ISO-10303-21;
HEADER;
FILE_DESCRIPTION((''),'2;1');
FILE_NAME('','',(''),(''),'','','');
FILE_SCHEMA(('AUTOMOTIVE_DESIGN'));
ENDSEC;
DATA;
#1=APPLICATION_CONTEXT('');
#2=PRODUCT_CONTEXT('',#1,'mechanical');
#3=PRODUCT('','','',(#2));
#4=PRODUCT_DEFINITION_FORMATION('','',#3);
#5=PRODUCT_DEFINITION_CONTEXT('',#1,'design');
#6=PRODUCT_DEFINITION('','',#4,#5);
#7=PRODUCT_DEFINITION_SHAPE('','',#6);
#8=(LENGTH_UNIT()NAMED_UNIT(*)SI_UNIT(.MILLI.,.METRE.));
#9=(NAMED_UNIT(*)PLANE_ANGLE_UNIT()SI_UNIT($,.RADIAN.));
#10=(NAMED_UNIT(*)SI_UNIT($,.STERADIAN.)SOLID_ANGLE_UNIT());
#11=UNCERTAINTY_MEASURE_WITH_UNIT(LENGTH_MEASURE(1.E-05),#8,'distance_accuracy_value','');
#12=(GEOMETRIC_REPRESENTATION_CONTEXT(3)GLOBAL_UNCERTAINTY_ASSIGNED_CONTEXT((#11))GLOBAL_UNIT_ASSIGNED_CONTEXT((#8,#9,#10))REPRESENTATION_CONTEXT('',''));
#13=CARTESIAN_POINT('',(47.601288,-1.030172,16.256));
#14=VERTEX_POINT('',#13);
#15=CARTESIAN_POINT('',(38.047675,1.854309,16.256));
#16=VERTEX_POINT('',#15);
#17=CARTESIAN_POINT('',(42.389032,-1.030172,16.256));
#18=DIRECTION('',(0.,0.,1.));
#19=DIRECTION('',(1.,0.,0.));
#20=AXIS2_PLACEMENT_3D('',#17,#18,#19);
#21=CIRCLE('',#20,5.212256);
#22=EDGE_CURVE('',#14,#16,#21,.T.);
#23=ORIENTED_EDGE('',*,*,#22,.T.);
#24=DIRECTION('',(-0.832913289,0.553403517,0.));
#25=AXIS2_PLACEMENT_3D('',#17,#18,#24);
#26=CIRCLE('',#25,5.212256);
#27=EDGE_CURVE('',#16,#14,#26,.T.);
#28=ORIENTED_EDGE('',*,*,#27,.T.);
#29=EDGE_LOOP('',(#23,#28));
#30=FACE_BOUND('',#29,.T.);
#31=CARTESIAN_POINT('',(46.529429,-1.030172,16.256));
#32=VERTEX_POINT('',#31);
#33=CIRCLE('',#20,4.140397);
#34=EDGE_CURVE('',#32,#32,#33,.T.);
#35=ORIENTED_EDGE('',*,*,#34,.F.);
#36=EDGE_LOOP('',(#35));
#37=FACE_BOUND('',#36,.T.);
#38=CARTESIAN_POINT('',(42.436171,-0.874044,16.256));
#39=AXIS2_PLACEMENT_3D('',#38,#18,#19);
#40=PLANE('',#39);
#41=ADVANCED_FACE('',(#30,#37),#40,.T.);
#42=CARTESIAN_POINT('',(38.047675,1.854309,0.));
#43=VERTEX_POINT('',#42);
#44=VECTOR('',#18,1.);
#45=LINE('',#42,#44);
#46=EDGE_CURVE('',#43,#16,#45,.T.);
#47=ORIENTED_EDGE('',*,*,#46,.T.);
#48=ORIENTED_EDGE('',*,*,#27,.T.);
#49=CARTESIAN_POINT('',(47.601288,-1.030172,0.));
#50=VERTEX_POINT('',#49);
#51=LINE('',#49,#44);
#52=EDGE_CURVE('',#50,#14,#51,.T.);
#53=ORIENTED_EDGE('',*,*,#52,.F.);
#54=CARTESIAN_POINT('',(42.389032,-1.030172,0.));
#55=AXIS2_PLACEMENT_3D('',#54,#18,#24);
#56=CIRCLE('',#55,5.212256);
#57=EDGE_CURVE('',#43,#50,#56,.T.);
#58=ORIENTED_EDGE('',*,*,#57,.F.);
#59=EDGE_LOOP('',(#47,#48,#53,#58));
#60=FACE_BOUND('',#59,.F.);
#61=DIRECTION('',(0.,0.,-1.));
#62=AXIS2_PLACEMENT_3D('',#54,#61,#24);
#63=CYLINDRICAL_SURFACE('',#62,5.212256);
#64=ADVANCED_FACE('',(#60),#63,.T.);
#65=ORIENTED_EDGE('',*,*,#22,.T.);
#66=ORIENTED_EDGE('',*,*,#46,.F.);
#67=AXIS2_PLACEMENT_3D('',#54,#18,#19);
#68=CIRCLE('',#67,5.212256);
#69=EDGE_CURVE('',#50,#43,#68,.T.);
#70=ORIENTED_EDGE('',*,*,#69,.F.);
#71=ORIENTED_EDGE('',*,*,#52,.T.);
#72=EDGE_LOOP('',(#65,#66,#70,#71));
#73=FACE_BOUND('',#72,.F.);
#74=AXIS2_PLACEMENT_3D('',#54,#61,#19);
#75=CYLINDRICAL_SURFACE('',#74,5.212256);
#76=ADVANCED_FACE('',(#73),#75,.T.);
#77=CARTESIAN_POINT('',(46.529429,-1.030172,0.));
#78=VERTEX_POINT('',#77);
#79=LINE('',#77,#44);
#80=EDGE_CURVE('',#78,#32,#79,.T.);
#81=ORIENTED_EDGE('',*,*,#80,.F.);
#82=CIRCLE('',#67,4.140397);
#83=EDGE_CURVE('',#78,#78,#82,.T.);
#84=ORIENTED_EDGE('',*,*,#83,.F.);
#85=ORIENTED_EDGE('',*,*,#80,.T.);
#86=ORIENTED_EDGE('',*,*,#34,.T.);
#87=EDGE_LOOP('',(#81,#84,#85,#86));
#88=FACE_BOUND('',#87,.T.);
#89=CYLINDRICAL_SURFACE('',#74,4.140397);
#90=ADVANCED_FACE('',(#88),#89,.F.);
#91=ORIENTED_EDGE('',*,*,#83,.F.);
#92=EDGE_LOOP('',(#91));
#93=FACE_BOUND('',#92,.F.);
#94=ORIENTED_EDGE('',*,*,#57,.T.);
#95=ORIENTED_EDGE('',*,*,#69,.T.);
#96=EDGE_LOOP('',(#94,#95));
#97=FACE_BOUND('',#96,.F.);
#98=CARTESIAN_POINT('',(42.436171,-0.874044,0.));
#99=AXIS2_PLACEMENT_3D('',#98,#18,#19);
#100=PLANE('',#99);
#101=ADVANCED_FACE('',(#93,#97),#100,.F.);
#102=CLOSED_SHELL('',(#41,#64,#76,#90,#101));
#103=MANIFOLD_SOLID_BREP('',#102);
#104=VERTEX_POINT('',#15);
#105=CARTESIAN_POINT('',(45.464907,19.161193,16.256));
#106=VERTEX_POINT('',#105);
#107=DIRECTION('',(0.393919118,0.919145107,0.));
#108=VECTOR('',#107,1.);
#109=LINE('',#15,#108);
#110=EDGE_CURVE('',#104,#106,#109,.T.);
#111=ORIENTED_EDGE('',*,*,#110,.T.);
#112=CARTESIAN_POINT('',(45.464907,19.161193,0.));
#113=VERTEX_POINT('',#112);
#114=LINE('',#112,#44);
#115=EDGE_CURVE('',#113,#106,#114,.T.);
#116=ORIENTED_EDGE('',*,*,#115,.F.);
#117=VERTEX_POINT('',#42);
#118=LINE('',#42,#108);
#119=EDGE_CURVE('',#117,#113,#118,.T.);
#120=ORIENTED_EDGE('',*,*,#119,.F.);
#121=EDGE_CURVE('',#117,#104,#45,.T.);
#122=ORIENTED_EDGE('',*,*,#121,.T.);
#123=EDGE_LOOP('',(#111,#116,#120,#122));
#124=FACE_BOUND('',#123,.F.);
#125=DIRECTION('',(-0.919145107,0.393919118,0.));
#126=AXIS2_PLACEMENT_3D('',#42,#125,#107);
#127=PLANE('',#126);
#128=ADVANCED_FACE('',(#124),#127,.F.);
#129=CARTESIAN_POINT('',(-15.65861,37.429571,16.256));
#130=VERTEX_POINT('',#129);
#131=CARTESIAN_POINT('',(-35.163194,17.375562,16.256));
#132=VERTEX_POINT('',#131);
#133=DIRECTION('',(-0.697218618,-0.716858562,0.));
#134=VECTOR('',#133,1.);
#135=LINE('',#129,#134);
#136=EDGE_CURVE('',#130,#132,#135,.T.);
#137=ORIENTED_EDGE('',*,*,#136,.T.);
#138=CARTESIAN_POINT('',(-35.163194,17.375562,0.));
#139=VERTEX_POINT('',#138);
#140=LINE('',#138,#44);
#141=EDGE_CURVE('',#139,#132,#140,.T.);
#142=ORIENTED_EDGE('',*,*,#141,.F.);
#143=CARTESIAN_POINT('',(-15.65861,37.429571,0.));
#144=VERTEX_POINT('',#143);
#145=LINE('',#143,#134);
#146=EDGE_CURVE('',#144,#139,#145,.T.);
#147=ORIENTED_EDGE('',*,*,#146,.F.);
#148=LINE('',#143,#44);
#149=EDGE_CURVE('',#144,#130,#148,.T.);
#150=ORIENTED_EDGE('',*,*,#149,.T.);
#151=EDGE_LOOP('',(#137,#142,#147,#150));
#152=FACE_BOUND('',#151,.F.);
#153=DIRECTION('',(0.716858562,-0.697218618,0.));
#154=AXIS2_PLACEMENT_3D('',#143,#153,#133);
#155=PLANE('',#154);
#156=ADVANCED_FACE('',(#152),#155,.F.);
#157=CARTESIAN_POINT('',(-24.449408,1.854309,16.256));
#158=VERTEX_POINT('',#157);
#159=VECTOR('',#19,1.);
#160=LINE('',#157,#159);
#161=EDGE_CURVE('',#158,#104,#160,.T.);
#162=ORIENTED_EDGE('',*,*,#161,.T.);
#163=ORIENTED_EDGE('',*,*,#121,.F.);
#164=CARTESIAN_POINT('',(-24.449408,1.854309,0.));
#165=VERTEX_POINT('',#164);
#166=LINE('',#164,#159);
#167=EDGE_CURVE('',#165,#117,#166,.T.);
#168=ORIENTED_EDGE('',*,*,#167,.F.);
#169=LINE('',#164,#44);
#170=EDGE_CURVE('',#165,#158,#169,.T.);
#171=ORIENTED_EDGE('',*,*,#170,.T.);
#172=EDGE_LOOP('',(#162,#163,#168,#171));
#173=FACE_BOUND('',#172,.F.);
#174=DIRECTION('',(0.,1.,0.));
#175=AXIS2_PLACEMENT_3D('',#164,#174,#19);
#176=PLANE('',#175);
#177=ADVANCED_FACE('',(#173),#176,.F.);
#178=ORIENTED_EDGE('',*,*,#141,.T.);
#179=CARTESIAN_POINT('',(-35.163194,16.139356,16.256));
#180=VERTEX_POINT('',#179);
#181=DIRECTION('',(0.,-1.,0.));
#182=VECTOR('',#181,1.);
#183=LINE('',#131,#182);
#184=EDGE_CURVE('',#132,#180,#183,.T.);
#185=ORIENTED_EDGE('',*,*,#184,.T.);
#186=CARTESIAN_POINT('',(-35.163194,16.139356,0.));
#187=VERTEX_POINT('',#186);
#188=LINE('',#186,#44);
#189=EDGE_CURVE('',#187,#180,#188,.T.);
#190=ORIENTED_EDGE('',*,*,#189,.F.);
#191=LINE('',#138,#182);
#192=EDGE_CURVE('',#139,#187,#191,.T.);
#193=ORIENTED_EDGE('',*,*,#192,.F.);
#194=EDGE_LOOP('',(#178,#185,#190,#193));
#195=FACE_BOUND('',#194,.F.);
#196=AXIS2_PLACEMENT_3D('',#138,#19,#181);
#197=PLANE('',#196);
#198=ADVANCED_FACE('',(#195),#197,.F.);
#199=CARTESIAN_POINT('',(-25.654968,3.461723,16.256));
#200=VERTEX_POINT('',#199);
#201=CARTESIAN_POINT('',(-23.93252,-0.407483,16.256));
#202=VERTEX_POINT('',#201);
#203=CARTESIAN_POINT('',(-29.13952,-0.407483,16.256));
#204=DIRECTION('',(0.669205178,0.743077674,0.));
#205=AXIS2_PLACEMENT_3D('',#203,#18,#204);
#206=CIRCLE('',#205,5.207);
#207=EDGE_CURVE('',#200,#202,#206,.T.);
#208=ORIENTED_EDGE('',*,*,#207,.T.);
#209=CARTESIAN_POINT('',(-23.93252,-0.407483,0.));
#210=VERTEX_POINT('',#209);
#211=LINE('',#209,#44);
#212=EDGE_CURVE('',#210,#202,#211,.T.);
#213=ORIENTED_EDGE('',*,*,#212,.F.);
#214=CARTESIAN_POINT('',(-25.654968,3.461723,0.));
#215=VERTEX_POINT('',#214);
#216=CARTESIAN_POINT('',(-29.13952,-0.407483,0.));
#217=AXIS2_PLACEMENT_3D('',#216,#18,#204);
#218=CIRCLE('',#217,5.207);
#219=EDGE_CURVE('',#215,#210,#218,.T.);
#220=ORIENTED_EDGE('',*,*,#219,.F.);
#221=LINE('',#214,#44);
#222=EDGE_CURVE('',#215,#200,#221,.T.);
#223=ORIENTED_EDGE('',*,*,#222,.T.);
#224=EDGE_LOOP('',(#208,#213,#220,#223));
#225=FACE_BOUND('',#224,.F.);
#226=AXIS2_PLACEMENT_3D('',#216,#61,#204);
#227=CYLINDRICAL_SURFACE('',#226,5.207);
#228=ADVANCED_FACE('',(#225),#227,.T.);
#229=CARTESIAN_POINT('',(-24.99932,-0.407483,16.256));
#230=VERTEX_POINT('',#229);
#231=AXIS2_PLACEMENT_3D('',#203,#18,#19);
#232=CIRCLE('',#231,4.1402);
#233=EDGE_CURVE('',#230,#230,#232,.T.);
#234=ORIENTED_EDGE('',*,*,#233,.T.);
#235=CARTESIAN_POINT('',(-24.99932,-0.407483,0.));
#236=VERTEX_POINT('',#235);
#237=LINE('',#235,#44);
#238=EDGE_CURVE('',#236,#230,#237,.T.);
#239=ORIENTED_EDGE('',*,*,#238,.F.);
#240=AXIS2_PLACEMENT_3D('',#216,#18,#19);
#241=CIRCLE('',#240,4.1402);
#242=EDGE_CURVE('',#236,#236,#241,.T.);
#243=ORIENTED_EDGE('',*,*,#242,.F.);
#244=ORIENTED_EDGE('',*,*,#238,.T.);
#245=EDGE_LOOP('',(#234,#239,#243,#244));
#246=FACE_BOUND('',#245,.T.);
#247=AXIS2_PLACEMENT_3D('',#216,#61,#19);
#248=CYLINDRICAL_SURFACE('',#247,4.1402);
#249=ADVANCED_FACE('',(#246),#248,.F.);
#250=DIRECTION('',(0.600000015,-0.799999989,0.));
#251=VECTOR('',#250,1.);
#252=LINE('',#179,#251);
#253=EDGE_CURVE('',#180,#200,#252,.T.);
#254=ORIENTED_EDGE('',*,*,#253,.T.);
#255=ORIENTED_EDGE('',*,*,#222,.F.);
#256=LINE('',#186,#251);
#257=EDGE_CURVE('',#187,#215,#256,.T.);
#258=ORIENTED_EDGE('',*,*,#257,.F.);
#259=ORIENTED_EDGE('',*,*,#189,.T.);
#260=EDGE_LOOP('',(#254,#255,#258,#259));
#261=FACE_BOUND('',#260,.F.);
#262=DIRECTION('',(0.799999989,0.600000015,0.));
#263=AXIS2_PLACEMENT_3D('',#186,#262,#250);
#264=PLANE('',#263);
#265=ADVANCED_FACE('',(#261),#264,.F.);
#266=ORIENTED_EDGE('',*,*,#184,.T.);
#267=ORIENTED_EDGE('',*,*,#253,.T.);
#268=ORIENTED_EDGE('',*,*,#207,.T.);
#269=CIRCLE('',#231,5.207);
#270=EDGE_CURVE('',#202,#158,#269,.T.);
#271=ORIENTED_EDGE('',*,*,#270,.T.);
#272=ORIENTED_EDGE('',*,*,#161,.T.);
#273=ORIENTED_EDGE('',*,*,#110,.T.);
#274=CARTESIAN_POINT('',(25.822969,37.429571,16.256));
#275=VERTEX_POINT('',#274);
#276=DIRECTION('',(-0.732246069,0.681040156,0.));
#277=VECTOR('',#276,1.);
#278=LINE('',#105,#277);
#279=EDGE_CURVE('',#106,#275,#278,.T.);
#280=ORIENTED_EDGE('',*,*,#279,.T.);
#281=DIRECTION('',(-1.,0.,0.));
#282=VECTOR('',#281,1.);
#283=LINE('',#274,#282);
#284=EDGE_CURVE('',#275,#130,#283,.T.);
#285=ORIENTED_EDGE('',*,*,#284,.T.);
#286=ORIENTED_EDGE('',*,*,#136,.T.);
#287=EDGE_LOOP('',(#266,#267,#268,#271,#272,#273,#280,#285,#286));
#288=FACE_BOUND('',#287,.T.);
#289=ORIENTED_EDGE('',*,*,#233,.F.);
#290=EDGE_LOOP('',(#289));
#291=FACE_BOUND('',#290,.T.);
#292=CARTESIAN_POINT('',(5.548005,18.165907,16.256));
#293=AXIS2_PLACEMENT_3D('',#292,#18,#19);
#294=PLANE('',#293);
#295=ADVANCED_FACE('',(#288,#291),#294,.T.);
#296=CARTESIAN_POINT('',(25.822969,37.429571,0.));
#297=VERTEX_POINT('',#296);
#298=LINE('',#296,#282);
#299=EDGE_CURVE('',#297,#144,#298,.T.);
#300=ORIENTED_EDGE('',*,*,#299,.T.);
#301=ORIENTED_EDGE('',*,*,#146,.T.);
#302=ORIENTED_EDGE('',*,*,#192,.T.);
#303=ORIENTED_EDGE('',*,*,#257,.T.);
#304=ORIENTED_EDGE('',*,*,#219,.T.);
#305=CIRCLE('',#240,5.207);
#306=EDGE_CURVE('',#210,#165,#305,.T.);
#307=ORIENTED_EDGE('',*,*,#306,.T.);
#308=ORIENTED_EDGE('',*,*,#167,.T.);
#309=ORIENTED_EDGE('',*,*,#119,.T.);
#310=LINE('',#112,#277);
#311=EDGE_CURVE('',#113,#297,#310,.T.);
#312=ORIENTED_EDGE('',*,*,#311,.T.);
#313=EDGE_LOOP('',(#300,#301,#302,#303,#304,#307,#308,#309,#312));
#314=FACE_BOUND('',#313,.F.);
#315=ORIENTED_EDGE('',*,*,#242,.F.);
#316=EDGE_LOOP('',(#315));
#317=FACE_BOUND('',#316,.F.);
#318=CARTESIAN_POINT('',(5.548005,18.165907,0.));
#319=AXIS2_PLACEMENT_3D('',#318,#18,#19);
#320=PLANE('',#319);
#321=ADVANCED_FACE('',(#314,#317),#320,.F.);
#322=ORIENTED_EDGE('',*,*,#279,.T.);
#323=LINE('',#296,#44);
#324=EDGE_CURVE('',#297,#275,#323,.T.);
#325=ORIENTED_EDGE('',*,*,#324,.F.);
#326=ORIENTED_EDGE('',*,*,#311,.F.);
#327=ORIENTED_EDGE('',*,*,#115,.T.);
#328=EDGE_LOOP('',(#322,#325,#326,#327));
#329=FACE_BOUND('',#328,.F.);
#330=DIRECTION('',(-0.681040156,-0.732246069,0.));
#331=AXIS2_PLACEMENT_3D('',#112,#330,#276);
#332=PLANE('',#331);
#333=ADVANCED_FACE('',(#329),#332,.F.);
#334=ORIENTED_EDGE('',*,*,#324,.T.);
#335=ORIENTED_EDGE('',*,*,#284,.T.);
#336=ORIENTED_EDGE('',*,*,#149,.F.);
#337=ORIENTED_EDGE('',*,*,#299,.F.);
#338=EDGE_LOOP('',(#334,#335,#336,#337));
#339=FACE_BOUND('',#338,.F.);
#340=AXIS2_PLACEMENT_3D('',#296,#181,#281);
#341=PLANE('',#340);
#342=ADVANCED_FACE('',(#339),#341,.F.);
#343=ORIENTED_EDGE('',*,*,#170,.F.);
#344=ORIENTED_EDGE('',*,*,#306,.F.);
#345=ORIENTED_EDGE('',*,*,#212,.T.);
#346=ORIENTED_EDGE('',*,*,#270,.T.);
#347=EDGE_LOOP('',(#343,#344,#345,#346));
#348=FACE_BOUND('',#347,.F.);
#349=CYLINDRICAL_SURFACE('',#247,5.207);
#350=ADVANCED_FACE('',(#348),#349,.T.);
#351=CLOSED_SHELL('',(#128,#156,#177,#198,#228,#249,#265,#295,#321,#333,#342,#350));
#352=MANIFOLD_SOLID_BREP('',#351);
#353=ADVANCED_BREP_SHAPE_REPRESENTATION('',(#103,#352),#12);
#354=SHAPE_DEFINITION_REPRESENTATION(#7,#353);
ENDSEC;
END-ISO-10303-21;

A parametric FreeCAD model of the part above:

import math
import FreeCAD as App
import Part
import Sketcher
Q = App.Units.Quantity

doc = App.newDocument("Part")
body = doc.addObject("PartDesign::Body", "Body")

sketch1 = body.newObject("Sketcher::SketchObject", "Sketch")
sketch1.AttachmentSupport = (doc.getObject("XY_Plane"), [""])
sketch1.MapMode = "FlatFace"
sketch1.addGeometry([
    Part.ArcOfCircle(Part.Circle(App.Vector(42.4, -1, 0), App.Vector(0, 0, 1), 5.2), math.radians(0), math.radians(146)),
    Part.ArcOfCircle(Part.Circle(App.Vector(42.4, -1, 0), App.Vector(0, 0, 1), 5.2), math.radians(146), math.radians(360)),
    Part.Circle(App.Vector(42.4, -1, 0), App.Vector(0, 0, 1), 4.1),
], False)
sketch1.addConstraint([
    Sketcher.Constraint("Tangent", 0, 1, 1, 2),
    Sketcher.Constraint("Coincident", 1, 1, 0, 2),
    Sketcher.Constraint("Coincident", 2, 3, 0, 3),
    Sketcher.Constraint("Horizontal", 2, 3, 0, 1),
    Sketcher.Constraint("Diameter", 2, 8.280793),
    Sketcher.Constraint("Radius", 0, 5.212256),
    Sketcher.Constraint("DistanceY", 0, 3, -1, 1, 1.030172),
    Sketcher.Constraint("DistanceX", -1, 1, 0, 1, 47.601288),
    Sketcher.Constraint("DistanceY", -1, 1, 1, 1, 1.854309),
])
pad1 = body.newObject("PartDesign::Pad", "Pad")
pad1.Profile = sketch1
pad1.Length = Q("0.64 in")
body2 = doc.addObject("PartDesign::Body", "Body001")

sketch2 = body2.newObject("Sketcher::SketchObject", "Sketch001")
sketch2.AttachmentSupport = (doc.getObject("XY_Plane001"), [""])
sketch2.MapMode = "FlatFace"
sketch2.addGeometry([
    Part.LineSegment(App.Vector(-15.7, 37.4, 0), App.Vector(-35.2, 17.4, 0)),
    Part.LineSegment(App.Vector(-35.2, 17.4, 0), App.Vector(-35.2, 16.1, 0)),
    Part.LineSegment(App.Vector(-35.2, 16.1, 0), App.Vector(-25.7, 3.5, 0)),
    Part.ArcOfCircle(Part.Circle(App.Vector(-29.1, -0.4, 0), App.Vector(0, 0, 1), 5.2), math.radians(48), math.radians(360)),
    Part.ArcOfCircle(Part.Circle(App.Vector(-29.1, -0.4, 0), App.Vector(0, 0, 1), 5.2), math.radians(0), math.radians(26)),
    Part.LineSegment(App.Vector(-24.4, 1.9, 0), App.Vector(38, 1.9, 0)),
    Part.LineSegment(App.Vector(38, 1.9, 0), App.Vector(45.5, 19.2, 0)),
    Part.LineSegment(App.Vector(45.5, 19.2, 0), App.Vector(25.8, 37.4, 0)),
    Part.LineSegment(App.Vector(25.8, 37.4, 0), App.Vector(-15.7, 37.4, 0)),
    Part.Circle(App.Vector(-29.1, -0.4, 0), App.Vector(0, 0, 1), 4.1),
], False)
sketch2.addConstraint([
    Sketcher.Constraint("Coincident", 0, 2, 1, 1),
    Sketcher.Constraint("Coincident", 1, 2, 2, 1),
    Sketcher.Constraint("Coincident", 2, 2, 3, 1),
    Sketcher.Constraint("Tangent", 3, 2, 4, 1),
    Sketcher.Constraint("Coincident", 4, 2, 5, 1),
    Sketcher.Constraint("Coincident", 5, 2, 6, 1),
    Sketcher.Constraint("Coincident", 6, 2, 7, 1),
    Sketcher.Constraint("Coincident", 7, 2, 8, 1),
    Sketcher.Constraint("Coincident", 8, 2, 0, 1),
    Sketcher.Constraint("Vertical", 1),
    Sketcher.Constraint("Horizontal", 5),
    Sketcher.Constraint("Horizontal", 8),
    Sketcher.Constraint("Coincident", 9, 3, 3, 3),
    Sketcher.Constraint("Equal", 3, 4),
    Sketcher.Constraint("Horizontal", 9, 3, 3, 2),
    Sketcher.Constraint("Diameter", 9, Q("0.326 in")),
    Sketcher.Constraint("Radius", 3, Q("0.205 in")),
    Sketcher.Constraint("DistanceX", 8, 2, 8, 1, 41.481579),
    Sketcher.Constraint("DistanceX", 4, 2, 8, 2, 8.790798),
    Sketcher.Constraint("Distance", 7, 26.824231),
    Sketcher.Constraint("DistanceX", 5, 1, 5, 2, 62.497083),
    Sketcher.Constraint("DistanceY", 1, 2, 1, 1, 1.236206),
    Sketcher.Constraint("DistanceX", 3, 3, -1, 1, 29.13952),
    Sketcher.Constraint("DistanceX", 2, 2, -1, 1, 25.654968),
    Sketcher.Constraint("DistanceX", 4, 2, -1, 1, 24.449408),
    Sketcher.Constraint("DistanceY", -1, 1, 4, 2, 1.854309),
    Sketcher.Constraint("DistanceY", -1, 1, 7, 2, 37.429571),
    Sketcher.Constraint("DistanceY", 4, 3, 1, 2, 16.546839),
    Sketcher.Constraint("DistanceX", 5, 2, 6, 2, 7.417232),
    Sketcher.Constraint("Distance", 0, 27.974847),
])
pad2 = body2.newObject("PartDesign::Pad", "Pad001")
pad2.Profile = sketch2
pad2.Length = Q("0.64 in")

doc.recompute()
